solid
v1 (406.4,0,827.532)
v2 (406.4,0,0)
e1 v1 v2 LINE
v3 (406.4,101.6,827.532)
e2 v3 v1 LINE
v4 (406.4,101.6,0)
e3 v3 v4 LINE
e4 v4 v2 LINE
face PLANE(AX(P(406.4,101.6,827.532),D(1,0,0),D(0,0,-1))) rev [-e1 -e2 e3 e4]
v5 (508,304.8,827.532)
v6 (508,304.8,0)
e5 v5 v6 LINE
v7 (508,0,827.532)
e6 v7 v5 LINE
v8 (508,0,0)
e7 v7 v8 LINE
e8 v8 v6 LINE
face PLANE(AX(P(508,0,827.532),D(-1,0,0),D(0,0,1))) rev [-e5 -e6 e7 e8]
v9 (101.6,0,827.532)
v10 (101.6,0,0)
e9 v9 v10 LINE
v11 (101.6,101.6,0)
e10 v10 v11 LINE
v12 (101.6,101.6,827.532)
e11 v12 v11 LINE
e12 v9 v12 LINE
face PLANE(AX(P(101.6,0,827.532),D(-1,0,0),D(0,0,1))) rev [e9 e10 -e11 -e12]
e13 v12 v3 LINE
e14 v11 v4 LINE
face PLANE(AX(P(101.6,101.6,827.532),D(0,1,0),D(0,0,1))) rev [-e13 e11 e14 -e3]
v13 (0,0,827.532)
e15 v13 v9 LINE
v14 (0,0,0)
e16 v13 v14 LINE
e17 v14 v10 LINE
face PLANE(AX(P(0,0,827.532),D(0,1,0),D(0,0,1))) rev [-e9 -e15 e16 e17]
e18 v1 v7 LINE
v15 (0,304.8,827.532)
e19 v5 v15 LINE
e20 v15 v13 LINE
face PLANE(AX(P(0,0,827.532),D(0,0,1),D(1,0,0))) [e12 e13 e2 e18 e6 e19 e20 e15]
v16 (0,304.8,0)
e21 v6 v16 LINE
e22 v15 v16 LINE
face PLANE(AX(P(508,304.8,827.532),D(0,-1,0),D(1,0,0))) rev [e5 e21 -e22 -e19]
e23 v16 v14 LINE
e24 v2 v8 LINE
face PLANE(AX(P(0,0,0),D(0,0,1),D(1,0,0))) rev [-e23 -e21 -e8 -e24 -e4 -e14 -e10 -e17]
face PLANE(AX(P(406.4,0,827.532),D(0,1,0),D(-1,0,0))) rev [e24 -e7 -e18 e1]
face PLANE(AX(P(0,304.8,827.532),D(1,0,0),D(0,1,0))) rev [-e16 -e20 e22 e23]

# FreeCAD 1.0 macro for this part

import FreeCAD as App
import Part
import Sketcher
Q = App.Units.Quantity

doc = App.newDocument("Part")
body = doc.addObject("PartDesign::Body", "Body")

sketch1 = body.newObject("Sketcher::SketchObject", "Sketch")
sketch1.AttachmentSupport = (doc.getObject("XY_Plane"), [""])
sketch1.MapMode = "FlatFace"
sketch1.addGeometry([
    Part.LineSegment(App.Vector(0, 0, 0), App.Vector(101.6, 0, 0)),
    Part.LineSegment(App.Vector(101.6, 0, 0), App.Vector(101.6, 101.6, 0)),
    Part.LineSegment(App.Vector(101.6, 101.6, 0), App.Vector(406.4, 101.6, 0)),
    Part.LineSegment(App.Vector(406.4, 101.6, 0), App.Vector(406.4, 0, 0)),
    Part.LineSegment(App.Vector(406.4, 0, 0), App.Vector(508, 0, 0)),
    Part.LineSegment(App.Vector(508, 0, 0), App.Vector(508, 304.8, 0)),
    Part.LineSegment(App.Vector(508, 304.8, 0), App.Vector(0, 304.8, 0)),
    Part.LineSegment(App.Vector(0, 304.8, 0), App.Vector(0, 0, 0)),
], False)
sketch1.addConstraint([
    Sketcher.Constraint("Coincident", 0, 2, 1, 1),
    Sketcher.Constraint("Coincident", 1, 2, 2, 1),
    Sketcher.Constraint("Coincident", 2, 2, 3, 1),
    Sketcher.Constraint("Coincident", 3, 2, 4, 1),
    Sketcher.Constraint("Coincident", 4, 2, 5, 1),
    Sketcher.Constraint("Coincident", 5, 2, 6, 1),
    Sketcher.Constraint("Coincident", 6, 2, 7, 1),
    Sketcher.Constraint("Coincident", 7, 2, 0, 1),
    Sketcher.Constraint("Horizontal", 0),
    Sketcher.Constraint("Vertical", 1),
    Sketcher.Constraint("Horizontal", 2),
    Sketcher.Constraint("Vertical", 3),
    Sketcher.Constraint("Horizontal", 4),
    Sketcher.Constraint("Vertical", 5),
    Sketcher.Constraint("Horizontal", 6),
    Sketcher.Constraint("Vertical", 7),
    Sketcher.Constraint("Coincident", 7, 2, -1, 1),
    Sketcher.Constraint("PointOnObject", 3, 2, -1),
    Sketcher.Constraint("Equal", 0, 4),
    Sketcher.Constraint("Equal", 4, 1),
    Sketcher.Constraint("Equal", 2, 5),
    Sketcher.Constraint("DistanceX", 0, 1, 0, 2, Q("4 in")),
    Sketcher.Constraint("DistanceX", 2, 1, 2, 2, Q("12 in")),
])
pad1 = body.newObject("PartDesign::Pad", "Pad")
pad1.Profile = sketch1
pad1.Length = Q("32.58 in")

doc.recompute()
